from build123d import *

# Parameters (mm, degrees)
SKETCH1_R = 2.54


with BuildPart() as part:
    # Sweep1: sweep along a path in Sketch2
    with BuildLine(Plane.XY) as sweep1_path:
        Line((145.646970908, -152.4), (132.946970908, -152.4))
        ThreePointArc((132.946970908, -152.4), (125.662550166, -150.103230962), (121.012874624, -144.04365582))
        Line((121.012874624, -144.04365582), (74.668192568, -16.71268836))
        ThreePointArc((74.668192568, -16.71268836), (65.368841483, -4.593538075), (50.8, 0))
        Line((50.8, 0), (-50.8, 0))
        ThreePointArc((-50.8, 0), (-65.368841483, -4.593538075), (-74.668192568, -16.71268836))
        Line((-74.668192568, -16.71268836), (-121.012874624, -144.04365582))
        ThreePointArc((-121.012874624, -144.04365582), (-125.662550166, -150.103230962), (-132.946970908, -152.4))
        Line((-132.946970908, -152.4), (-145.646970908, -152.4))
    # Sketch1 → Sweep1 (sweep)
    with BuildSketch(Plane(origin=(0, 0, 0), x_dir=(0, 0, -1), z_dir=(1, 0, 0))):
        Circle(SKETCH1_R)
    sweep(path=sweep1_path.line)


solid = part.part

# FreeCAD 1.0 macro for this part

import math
import FreeCAD as App
import Part
import Sketcher
Q = App.Units.Quantity

doc = App.newDocument("Part")
body = doc.addObject("PartDesign::Body", "Body")

sketch1 = doc.addObject("Sketcher::SketchObject", "Sketch")
body.addObject(sketch1)
sketch1.AttachmentSupport = (doc.YZ_Plane, [""])
sketch1.MapMode = "FlatFace"
sketch1.addGeometry(Part.Circle(App.Vector(0, 0, 0), App.Vector(0, 0, 1), 2.54), False)
sketch1.addConstraint(Sketcher.Constraint("Coincident", 0, 3, -1, 1))
sketch1.addConstraint(Sketcher.Constraint("Diameter", 0, Q("0.2 in")))

sketch2 = doc.addObject("Sketcher::SketchObject", "Sketch001")
body.addObject(sketch2)
sketch2.AttachmentSupport = (doc.XY_Plane, [""])
sketch2.MapMode = "FlatFace"
sketch2.addGeometry(Part.LineSegment(App.Vector(145.646971, -152.4, 0), App.Vector(132.946971, -152.4, 0)), False)
sketch2.addGeometry(Part.ArcOfCircle(Part.Circle(App.Vector(132.946971, -139.7, 0), App.Vector(0, 0, 1), 12.7), math.radians(-160), math.radians(-90)), False)
sketch2.addGeometry(Part.LineSegment(App.Vector(121.012875, -144.043656, 0), App.Vector(74.668193, -16.712688, 0)), False)
sketch2.addGeometry(Part.ArcOfCircle(Part.Circle(App.Vector(50.8, -25.4, 0), App.Vector(0, 0, 1), 25.4), math.radians(20), math.radians(90)), False)
sketch2.addGeometry(Part.LineSegment(App.Vector(50.8, 0, 0), App.Vector(-50.8, 0, 0)), False)
sketch2.addGeometry(Part.ArcOfCircle(Part.Circle(App.Vector(-50.8, -25.4, 0), App.Vector(0, 0, 1), 25.4), math.radians(90), math.radians(160)), False)
sketch2.addGeometry(Part.LineSegment(App.Vector(-74.668193, -16.712688, 0), App.Vector(-121.012875, -144.043656, 0)), False)
sketch2.addGeometry(Part.ArcOfCircle(Part.Circle(App.Vector(-132.946971, -139.7, 0), App.Vector(0, 0, 1), 12.7), math.radians(-90), math.radians(-20)), False)
sketch2.addGeometry(Part.LineSegment(App.Vector(-132.946971, -152.4, 0), App.Vector(-145.646971, -152.4, 0)), False)
sketch2.addConstraint(Sketcher.Constraint("Tangent", 0, 2, 1, 2))
sketch2.addConstraint(Sketcher.Constraint("Tangent", 1, 1, 2, 1))
sketch2.addConstraint(Sketcher.Constraint("Tangent", 2, 2, 3, 1))
sketch2.addConstraint(Sketcher.Constraint("Tangent", 3, 2, 4, 1))
sketch2.addConstraint(Sketcher.Constraint("Tangent", 4, 2, 5, 1))
sketch2.addConstraint(Sketcher.Constraint("Tangent", 5, 2, 6, 1))
sketch2.addConstraint(Sketcher.Constraint("Tangent", 6, 2, 7, 2))
sketch2.addConstraint(Sketcher.Constraint("Tangent", 7, 1, 8, 1))
sketch2.addConstraint(Sketcher.Constraint("Horizontal", 0))
sketch2.addConstraint(Sketcher.Constraint("Horizontal", 4))
sketch2.addConstraint(Sketcher.Constraint("Horizontal", 8))
sketch2.addConstraint(Sketcher.Constraint("Equal", 3, 5))
sketch2.addConstraint(Sketcher.Constraint("Equal", 1, 7))
sketch2.addConstraint(Sketcher.Constraint("Symmetric", 3, 2, 4, 2, -1, 1))
sketch2.addConstraint(Sketcher.Constraint("Symmetric", 1, 3, 7, 3, -2))
sketch2.addConstraint(Sketcher.Constraint("Equal", 0, 8))
sketch2.addConstraint(Sketcher.Constraint("Radius", 3, Q("1 in")))
sketch2.addConstraint(Sketcher.Constraint("Radius", 1, Q("0.5 in")))
sketch2.addConstraint(Sketcher.Constraint("DistanceX", 4, 2, 4, 1, Q("4 in")))
sketch2.addConstraint(Sketcher.Constraint("DistanceX", 0, 2, 0, 1, Q("0.5 in")))
sketch2.addConstraint(Sketcher.Constraint("DistanceY", 0, 1, -1, 1, Q("6 in")))
sketch2.addConstraint(Sketcher.Constraint("Angle", 2, Q("110 deg")))
doc.recompute()

additivepipe = doc.addObject("PartDesign::AdditivePipe", "AdditivePipe")
body.addObject(additivepipe)
additivepipe.Profile = sketch1
additivepipe.Spine = (sketch2, ["Edge1", "Edge2", "Edge3", "Edge4", "Edge5", "Edge6", "Edge7", "Edge8", "Edge9"])

doc.recompute()
